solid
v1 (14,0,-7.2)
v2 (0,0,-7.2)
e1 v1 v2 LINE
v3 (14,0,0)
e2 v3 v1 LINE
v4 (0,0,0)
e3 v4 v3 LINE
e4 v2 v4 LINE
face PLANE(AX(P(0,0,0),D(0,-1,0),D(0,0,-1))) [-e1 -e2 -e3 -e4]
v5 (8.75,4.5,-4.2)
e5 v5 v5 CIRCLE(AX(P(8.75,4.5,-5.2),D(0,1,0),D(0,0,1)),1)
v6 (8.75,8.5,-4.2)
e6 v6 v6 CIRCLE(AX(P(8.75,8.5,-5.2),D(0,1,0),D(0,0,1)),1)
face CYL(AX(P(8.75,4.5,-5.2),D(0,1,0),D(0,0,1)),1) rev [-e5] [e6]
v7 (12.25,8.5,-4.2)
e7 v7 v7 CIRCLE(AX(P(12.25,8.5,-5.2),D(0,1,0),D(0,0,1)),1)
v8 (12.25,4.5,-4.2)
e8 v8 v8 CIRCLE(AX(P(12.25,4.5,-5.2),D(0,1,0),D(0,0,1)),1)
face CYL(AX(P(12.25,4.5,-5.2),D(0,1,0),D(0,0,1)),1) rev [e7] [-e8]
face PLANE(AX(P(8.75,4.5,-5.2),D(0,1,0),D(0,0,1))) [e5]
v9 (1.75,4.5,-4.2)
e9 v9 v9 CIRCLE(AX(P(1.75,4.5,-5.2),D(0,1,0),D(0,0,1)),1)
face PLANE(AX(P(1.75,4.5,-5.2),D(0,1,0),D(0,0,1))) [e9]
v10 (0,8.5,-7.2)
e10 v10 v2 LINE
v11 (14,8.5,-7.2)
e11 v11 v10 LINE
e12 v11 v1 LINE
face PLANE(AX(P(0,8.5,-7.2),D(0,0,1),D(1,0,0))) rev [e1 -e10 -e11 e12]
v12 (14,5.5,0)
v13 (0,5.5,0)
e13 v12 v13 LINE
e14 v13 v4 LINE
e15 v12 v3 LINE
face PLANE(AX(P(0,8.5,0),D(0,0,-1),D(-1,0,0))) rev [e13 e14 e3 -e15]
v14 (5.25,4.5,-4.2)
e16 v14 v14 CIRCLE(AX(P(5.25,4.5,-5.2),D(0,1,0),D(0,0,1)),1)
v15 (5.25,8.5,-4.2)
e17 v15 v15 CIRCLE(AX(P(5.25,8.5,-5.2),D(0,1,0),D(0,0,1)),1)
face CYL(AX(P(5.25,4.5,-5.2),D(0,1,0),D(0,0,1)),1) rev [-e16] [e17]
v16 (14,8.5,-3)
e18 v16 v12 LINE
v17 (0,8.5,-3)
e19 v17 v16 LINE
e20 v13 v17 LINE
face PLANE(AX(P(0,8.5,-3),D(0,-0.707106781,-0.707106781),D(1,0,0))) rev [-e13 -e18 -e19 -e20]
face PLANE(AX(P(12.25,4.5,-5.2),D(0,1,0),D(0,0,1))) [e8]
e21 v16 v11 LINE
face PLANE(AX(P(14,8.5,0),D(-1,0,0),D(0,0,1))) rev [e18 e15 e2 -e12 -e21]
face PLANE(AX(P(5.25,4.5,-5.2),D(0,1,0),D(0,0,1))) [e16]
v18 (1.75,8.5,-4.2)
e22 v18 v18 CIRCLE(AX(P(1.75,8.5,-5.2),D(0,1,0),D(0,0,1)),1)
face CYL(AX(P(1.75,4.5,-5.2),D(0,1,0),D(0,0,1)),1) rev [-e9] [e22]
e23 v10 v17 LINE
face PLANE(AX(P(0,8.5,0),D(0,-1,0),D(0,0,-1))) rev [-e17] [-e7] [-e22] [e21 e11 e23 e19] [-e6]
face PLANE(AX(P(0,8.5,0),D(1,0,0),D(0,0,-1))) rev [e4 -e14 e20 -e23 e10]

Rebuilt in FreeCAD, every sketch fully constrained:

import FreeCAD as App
import Part
import Sketcher
from FreeCAD import Vector


def edges_at(feature, points):
    """Names of the edges that pass closest to the given points."""
    edges = feature.Shape.Edges
    near = lambda p: min(range(len(edges)), key=lambda i: edges[i].distToShape(Part.Vertex(*p))[0])
    return sorted({f"Edge{near(p) + 1}" for p in points})

doc = App.newDocument("Part")
body = doc.addObject("PartDesign::Body", "Body")

sketch1 = doc.addObject("Sketcher::SketchObject", "Sketch")
body.addObject(sketch1)
sketch1.AttachmentSupport = (doc.XZ_Plane, [""])
sketch1.MapMode = "FlatFace"
sketch1.addGeometry([
    Part.LineSegment(Vector(0, -7, 0), Vector(0, 0, 0)),
    Part.LineSegment(Vector(0, 0, 0), Vector(14, 0, 0)),
    Part.LineSegment(Vector(14, 0, 0), Vector(14, -7, 0)),
    Part.LineSegment(Vector(14, -7, 0), Vector(0, -7, 0)),
], False)
sketch1.addConstraint([
    Sketcher.Constraint("Coincident", 0, 2, 1, 1),
    Sketcher.Constraint("Coincident", 1, 2, 2, 1),
    Sketcher.Constraint("Coincident", 2, 2, 3, 1),
    Sketcher.Constraint("Coincident", 3, 2, 0, 1),
    Sketcher.Constraint("Vertical", 0),
    Sketcher.Constraint("Horizontal", 1),
    Sketcher.Constraint("Vertical", 2),
    Sketcher.Constraint("Horizontal", 3),
    Sketcher.Constraint("Coincident", 0, 2, -1, 1),
    Sketcher.Constraint("DistanceX", 1, 1, 1, 2, 14.0),
    Sketcher.Constraint("DistanceY", 0, 1, 0, 2, 7.2),
])
pad1 = doc.addObject("PartDesign::Pad", "Pad")
body.addObject(pad1)
pad1.Profile = sketch1
pad1.Length = 8.5
pad1.Reversed = True
doc.recompute()

chamfer = doc.addObject("PartDesign::Chamfer", "Chamfer")
body.addObject(chamfer)
chamfer.Base = (pad1, edges_at(pad1, [(7, 8.5, 0)]))
chamfer.Size = 3

sketch2 = doc.addObject("Sketcher::SketchObject", "Sketch001")
body.addObject(sketch2)
sketch2.AttachmentSupport = (doc.XZ_Plane, [""])
sketch2.MapMode = "FlatFace"
sketch2.AttachmentOffset = App.Placement(Vector(0, 0, -8.5), App.Rotation())
sketch2.addGeometry([
    Part.Circle(Vector(1.8, -5.2, 0), Vector(0, 0, 1), 1),
    Part.Circle(Vector(5.2, -5.2, 0), Vector(0, 0, 1), 1),
    Part.Circle(Vector(8.8, -5.2, 0), Vector(0, 0, 1), 1),
    Part.Circle(Vector(12.2, -5.2, 0), Vector(0, 0, 1), 1),
], False)
sketch2.addConstraint([
    Sketcher.Constraint("Equal", 0, 1),
    Sketcher.Constraint("Equal", 1, 2),
    Sketcher.Constraint("Equal", 2, 3),
    Sketcher.Constraint("Horizontal", 0, 3, 1, 3),
    Sketcher.Constraint("Horizontal", 1, 3, 2, 3),
    Sketcher.Constraint("Horizontal", 2, 3, 3, 3),
    Sketcher.Constraint("Diameter", 0, 2.0),
    Sketcher.Constraint("DistanceX", 0, 3, 2, 3, 7.0),
    Sketcher.Constraint("DistanceX", 1, 3, 3, 3, 7.0),
    Sketcher.Constraint("DistanceY", 0, 3, -1, 1, 5.2),
    Sketcher.Constraint("DistanceX", 0, 3, 1, 3, 3.5),
    Sketcher.Constraint("DistanceX", -1, 1, 0, 3, 1.75),
])
pocket1 = doc.addObject("PartDesign::Pocket", "Pocket")
body.addObject(pocket1)
pocket1.Profile = sketch2
pocket1.Length = 4
pocket1.Reversed = True

doc.recompute()
